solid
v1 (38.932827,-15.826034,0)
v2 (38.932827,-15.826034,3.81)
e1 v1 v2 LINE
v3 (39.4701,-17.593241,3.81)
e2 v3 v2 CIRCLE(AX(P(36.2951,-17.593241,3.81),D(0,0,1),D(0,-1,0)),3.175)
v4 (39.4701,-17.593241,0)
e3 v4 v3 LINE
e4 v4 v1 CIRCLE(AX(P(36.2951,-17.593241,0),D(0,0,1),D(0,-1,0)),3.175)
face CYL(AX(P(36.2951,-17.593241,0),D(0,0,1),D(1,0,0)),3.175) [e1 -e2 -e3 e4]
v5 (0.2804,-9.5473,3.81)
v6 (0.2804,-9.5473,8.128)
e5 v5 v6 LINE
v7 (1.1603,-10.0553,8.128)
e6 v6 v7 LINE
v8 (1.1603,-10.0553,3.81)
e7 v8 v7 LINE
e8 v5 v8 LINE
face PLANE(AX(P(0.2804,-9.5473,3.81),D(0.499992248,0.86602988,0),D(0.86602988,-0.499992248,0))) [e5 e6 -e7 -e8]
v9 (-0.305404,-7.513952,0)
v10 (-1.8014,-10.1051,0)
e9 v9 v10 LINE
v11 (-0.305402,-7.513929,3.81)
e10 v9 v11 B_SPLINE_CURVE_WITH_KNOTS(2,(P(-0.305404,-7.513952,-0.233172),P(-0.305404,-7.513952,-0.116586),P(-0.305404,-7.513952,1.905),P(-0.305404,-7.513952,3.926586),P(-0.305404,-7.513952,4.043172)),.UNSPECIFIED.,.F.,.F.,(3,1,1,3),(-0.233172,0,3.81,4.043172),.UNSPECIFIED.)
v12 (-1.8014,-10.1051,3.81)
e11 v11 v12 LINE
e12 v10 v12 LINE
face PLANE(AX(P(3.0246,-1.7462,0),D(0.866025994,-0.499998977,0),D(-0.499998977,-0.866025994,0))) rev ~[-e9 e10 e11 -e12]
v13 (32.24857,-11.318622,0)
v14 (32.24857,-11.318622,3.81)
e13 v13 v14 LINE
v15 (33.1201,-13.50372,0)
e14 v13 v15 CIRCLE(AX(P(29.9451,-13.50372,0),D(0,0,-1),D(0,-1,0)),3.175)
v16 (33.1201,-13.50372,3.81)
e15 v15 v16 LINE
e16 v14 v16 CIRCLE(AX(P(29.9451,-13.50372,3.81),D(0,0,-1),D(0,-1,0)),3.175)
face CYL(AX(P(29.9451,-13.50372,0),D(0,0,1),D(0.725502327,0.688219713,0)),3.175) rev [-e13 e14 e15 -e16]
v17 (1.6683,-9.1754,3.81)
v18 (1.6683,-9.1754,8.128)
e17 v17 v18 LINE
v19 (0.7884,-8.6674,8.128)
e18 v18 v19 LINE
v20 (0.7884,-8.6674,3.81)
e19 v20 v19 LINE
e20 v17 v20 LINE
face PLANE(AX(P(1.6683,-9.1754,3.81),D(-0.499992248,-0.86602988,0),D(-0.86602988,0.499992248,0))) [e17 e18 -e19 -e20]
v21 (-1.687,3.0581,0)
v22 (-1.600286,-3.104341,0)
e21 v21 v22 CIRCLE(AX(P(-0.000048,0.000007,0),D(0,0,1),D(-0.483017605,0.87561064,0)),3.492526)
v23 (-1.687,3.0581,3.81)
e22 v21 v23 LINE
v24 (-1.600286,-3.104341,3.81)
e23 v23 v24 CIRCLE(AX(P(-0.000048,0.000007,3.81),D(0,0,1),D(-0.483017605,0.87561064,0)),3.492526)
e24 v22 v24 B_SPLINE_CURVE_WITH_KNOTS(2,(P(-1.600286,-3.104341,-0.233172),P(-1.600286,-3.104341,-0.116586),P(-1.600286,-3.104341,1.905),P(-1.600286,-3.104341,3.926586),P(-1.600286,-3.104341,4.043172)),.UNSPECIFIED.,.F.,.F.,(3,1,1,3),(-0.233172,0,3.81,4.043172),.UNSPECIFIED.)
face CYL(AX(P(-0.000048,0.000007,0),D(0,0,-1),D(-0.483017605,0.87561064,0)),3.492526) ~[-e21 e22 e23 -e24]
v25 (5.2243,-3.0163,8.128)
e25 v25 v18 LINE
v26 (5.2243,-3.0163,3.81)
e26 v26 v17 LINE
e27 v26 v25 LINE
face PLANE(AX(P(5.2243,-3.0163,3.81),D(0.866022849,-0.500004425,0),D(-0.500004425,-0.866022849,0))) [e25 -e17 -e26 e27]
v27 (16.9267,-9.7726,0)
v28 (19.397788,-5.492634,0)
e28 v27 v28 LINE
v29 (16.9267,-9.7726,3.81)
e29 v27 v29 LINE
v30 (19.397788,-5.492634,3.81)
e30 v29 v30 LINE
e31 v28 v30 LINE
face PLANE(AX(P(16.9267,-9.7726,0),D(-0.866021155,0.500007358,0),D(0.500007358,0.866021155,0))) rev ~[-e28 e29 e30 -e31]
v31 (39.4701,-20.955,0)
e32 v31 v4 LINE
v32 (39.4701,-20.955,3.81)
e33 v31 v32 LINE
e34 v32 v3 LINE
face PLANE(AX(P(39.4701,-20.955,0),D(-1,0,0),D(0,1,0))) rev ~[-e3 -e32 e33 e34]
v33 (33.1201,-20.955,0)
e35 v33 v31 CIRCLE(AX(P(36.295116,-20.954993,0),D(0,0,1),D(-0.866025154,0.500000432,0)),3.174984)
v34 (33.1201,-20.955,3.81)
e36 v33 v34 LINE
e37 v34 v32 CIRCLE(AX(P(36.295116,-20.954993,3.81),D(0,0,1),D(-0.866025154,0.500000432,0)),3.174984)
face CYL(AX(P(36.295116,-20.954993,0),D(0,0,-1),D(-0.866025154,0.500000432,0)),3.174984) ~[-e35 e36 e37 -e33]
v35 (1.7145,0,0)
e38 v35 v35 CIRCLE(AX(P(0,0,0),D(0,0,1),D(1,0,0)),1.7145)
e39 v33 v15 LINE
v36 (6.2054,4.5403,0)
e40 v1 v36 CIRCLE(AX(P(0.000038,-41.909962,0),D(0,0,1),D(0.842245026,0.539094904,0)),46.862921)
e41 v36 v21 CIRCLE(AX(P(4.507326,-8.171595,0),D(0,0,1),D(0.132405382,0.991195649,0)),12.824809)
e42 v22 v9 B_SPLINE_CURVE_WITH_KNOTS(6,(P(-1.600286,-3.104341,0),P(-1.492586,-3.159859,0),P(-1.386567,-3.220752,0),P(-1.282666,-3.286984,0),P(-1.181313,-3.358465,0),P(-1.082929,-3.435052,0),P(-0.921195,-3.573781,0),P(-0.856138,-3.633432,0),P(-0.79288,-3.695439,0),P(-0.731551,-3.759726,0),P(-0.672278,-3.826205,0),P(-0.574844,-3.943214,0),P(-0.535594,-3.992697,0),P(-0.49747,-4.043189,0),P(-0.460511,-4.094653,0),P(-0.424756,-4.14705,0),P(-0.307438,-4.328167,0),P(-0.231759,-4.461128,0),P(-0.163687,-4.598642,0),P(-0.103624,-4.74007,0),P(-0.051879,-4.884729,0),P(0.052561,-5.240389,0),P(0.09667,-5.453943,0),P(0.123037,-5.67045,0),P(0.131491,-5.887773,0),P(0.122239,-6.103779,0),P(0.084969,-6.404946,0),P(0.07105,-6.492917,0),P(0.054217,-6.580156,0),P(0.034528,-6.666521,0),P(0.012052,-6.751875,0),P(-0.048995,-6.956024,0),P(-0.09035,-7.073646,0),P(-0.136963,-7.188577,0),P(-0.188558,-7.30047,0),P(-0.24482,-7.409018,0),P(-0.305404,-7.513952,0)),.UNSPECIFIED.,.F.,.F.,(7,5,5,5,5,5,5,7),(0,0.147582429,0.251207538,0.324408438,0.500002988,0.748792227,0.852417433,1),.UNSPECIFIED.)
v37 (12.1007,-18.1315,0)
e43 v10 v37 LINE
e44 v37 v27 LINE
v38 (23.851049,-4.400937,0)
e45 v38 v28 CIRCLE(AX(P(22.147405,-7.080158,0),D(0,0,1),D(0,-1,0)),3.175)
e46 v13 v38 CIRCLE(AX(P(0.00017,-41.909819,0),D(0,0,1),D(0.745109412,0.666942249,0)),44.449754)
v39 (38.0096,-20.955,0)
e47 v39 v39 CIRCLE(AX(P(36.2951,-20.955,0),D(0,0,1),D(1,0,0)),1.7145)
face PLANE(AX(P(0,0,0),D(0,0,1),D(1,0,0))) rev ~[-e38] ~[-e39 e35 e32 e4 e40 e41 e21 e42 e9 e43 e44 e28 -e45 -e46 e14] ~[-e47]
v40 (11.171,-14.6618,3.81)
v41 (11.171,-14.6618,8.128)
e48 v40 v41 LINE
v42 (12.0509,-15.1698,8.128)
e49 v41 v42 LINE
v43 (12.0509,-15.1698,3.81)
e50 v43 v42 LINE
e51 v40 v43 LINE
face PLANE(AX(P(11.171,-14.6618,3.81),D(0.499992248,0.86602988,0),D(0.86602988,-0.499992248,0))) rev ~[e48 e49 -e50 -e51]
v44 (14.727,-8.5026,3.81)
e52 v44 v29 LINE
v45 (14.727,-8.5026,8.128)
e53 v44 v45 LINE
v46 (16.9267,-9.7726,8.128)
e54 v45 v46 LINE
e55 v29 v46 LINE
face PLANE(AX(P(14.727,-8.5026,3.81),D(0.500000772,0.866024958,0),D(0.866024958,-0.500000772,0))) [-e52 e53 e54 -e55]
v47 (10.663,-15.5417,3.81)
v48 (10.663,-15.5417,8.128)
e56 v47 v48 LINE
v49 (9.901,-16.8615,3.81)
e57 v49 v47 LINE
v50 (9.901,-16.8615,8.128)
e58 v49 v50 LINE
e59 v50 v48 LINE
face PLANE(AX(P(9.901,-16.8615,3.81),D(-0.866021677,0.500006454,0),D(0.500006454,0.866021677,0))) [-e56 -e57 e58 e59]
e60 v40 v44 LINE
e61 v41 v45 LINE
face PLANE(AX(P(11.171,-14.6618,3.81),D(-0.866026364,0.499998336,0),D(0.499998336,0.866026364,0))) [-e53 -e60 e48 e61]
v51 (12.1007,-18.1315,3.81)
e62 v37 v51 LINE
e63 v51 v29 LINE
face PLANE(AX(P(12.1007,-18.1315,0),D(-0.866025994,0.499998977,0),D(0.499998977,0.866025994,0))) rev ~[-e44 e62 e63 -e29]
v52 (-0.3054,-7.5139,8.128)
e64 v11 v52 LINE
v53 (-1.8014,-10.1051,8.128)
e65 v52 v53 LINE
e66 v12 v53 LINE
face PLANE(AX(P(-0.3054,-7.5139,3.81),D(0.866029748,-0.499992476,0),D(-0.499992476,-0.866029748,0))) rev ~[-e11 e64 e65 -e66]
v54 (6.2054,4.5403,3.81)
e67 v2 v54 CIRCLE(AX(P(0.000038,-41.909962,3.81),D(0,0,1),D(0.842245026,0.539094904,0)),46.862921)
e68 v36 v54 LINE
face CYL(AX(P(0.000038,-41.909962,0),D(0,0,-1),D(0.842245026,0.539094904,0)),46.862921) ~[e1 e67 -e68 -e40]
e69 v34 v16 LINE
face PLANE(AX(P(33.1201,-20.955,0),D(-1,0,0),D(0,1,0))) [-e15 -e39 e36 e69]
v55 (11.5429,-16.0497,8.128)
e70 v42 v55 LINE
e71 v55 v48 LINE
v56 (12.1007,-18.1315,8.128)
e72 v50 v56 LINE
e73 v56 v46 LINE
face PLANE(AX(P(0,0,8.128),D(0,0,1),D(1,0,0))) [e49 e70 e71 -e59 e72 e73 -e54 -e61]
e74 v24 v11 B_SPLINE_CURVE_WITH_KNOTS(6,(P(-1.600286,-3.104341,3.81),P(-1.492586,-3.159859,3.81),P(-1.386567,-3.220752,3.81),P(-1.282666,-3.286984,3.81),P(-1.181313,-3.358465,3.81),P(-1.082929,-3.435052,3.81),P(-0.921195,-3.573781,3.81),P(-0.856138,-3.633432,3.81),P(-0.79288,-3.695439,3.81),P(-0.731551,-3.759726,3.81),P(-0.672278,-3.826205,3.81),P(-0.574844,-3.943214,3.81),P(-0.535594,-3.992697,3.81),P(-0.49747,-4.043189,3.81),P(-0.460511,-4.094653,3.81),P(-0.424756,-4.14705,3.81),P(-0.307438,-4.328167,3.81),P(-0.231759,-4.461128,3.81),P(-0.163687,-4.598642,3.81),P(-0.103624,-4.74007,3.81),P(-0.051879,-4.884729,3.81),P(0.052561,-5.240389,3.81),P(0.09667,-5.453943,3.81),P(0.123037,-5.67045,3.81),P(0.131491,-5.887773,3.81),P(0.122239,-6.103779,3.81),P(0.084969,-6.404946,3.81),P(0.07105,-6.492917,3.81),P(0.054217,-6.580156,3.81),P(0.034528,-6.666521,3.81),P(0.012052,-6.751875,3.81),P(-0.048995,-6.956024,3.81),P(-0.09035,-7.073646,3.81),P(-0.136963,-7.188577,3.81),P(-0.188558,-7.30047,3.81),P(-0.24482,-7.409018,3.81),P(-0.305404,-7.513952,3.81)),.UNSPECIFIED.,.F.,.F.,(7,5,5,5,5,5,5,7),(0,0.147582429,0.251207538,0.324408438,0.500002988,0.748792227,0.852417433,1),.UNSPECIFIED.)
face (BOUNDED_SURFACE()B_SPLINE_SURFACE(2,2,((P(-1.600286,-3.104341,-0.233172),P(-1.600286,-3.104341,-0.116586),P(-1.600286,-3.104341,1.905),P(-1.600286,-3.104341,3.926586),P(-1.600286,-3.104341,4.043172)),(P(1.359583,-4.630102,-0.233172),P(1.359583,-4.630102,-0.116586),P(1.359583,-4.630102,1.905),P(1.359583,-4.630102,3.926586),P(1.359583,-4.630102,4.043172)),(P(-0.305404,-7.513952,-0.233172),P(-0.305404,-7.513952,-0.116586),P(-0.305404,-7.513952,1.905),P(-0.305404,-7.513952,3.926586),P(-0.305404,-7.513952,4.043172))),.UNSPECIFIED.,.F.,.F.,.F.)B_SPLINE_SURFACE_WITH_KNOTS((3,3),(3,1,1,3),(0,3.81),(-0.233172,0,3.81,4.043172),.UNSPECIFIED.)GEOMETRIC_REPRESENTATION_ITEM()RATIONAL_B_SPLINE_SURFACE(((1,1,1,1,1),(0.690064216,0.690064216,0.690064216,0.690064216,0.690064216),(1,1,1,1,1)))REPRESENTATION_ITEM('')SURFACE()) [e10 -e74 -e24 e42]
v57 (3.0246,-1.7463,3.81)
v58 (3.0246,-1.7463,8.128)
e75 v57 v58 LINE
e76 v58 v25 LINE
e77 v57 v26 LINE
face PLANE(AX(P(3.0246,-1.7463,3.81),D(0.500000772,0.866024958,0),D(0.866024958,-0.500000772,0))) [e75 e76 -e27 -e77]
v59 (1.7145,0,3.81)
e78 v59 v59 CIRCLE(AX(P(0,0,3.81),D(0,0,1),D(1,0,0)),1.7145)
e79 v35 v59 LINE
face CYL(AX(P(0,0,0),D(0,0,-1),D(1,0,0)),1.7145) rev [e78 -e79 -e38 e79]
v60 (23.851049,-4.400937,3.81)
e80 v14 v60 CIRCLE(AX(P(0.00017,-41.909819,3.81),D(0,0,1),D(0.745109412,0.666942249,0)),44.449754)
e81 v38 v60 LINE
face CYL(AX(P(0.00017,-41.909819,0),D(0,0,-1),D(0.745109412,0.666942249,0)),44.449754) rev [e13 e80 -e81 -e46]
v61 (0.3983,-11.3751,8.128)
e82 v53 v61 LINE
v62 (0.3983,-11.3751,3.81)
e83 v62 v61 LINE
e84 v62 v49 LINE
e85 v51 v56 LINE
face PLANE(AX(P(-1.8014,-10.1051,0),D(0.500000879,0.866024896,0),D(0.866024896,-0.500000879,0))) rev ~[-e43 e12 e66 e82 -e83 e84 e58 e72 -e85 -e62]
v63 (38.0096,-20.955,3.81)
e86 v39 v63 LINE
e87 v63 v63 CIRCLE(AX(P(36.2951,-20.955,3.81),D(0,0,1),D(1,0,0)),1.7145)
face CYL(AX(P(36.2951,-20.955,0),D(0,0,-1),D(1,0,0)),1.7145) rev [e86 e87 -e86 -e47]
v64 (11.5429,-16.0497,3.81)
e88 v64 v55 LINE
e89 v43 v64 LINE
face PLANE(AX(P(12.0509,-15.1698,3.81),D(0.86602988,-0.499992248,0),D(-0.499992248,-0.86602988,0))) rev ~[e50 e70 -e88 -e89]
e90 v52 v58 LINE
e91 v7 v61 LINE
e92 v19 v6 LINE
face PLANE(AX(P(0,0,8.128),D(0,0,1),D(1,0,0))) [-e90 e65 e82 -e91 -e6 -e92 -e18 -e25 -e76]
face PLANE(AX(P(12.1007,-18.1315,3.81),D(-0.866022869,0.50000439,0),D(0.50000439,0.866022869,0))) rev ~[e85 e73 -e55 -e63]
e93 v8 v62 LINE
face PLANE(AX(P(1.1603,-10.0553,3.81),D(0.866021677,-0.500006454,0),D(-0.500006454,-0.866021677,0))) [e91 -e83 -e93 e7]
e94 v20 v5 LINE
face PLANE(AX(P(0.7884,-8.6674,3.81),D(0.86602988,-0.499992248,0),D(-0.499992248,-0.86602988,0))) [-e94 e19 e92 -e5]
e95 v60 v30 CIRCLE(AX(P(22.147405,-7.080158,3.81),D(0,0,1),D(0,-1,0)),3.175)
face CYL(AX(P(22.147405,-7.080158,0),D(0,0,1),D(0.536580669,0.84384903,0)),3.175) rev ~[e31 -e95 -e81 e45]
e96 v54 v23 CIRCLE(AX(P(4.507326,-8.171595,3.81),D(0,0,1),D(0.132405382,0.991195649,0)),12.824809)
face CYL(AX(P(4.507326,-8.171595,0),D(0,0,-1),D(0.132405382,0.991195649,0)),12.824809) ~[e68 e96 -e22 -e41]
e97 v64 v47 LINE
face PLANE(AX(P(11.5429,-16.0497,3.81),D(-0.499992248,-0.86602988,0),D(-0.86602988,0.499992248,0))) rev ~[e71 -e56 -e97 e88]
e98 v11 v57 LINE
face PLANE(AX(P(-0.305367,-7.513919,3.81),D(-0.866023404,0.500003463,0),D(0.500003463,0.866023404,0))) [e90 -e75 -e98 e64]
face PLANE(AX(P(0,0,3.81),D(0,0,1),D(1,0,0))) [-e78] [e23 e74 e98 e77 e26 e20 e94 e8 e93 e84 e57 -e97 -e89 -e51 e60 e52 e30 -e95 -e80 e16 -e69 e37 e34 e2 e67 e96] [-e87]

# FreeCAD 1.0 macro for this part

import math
import FreeCAD as App
import Part
import Sketcher
Q = App.Units.Quantity


def edges_at(feature, points):
    """Names of the edges that pass closest to the given points."""
    edges = feature.Shape.Edges
    near = lambda p: min(range(len(edges)), key=lambda i: edges[i].distToShape(Part.Vertex(*p))[0])
    return sorted({f"Edge{near(p) + 1}" for p in points})

doc = App.newDocument("Part")
body = doc.addObject("PartDesign::Body", "Body")

# Sketch on XY plane
sketch1 = body.newObject("Sketcher::SketchObject", "Sketch")
sketch1.AttachmentSupport = (doc.getObject("XY_Plane"), [""])
sketch1.MapMode = "FlatFace"
sketch1.addGeometry([
    Part.ArcOfCircle(Part.Circle(App.Vector(4.5073, -8.1706, 0), App.Vector(0, 0, 1), 12.823826), math.radians(82.390683), math.radians(118.883277)),  # 0
    Part.ArcOfCircle(Part.Circle(App.Vector(0, 0, 0), App.Vector(0, 0, 1), 3.492556), math.radians(118.883313), math.radians(330.000762)),  # 1
    Part.LineSegment(App.Vector(3.0246, -1.7462, 0), App.Vector(-1.8014, -10.1051, 0)),  # 2
    Part.LineSegment(App.Vector(-1.8014, -10.1051, 0), App.Vector(12.1007, -18.1315, 0)),  # 3
    Part.LineSegment(App.Vector(12.1007, -18.1315, 0), App.Vector(16.9267, -9.7726, 0)),  # 4
    Part.LineSegment(App.Vector(16.9267, -9.7726, 0), App.Vector(20.993, -2.7297, 0)),  # 5
    Part.ArcOfCircle(Part.Circle(App.Vector(0, -41.91, 0), App.Vector(0, 0, 1), 44.450001), math.radians(41.83153), math.radians(61.817372)),  # 6
    Part.LineSegment(App.Vector(33.1201, -12.2644, 0), App.Vector(33.1201, -20.955, 0)),  # 7
    Part.ArcOfCircle(Part.Circle(App.Vector(36.2951, -20.955, 0), App.Vector(0, 0, 1), 3.174973), math.radians(180), math.radians(360)),  # 8
    Part.LineSegment(App.Vector(39.4701, -20.955, 0), App.Vector(39.4701, -16.6464, 0)),  # 9
    Part.ArcOfCircle(Part.Circle(App.Vector(0, -41.91, 0), App.Vector(0, 0, 1), 46.862973), math.radians(32.622061), math.radians(82.390782)),  # 10
    Part.Circle(App.Vector(36.2951, -20.955, 0), App.Vector(0, 0, 1), 1.7145),  # 11
    Part.Circle(App.Vector(0, 0, 0), App.Vector(0, 0, 1), 1.7145),  # 12
], False)
sketch1.addConstraint([
    Sketcher.Constraint("Tangent", 0, 2, 1, 1),
    Sketcher.Constraint("Tangent", 1, 2, 2, 1),
    Sketcher.Constraint("Coincident", 2, 2, 3, 1),
    Sketcher.Constraint("Coincident", 3, 2, 4, 1),
    Sketcher.Constraint("Coincident", 4, 2, 5, 1),
    Sketcher.Constraint("Coincident", 5, 2, 6, 2),
    Sketcher.Constraint("Coincident", 6, 1, 7, 1),
    Sketcher.Constraint("Tangent", 7, 2, 8, 1),
    Sketcher.Constraint("Tangent", 8, 2, 9, 1),
    Sketcher.Constraint("Coincident", 9, 2, 10, 1),
    Sketcher.Constraint("Tangent", 10, 2, 0, 1),
    Sketcher.Constraint("Vertical", 7),
    Sketcher.Constraint("Vertical", 9),
    Sketcher.Constraint("Coincident", 1, 3, -1, 1),
    Sketcher.Constraint("Coincident", 12, 3, -1, 1),
    Sketcher.Constraint("Coincident", 10, 3, 6, 3),
    Sketcher.Constraint("Coincident", 11, 3, 8, 3),
    Sketcher.Constraint("Equal", 11, 12),
    Sketcher.Constraint("PointOnObject", 6, 3, -2),
    Sketcher.Constraint("Perpendicular", 2, 3),
    Sketcher.Constraint("Perpendicular", 3, 4),
    Sketcher.Constraint("Parallel", 4, 5),
    Sketcher.Constraint("Equal", 2, 4),
    Sketcher.Constraint("Diameter", 11, Q("0.135 in")),
    Sketcher.Constraint("Angle", 3, Q("-30 deg")),
    Sketcher.Constraint("Radius", 8, Q("0.125 in")),
    Sketcher.Constraint("Radius", 10, Q("1.845 in")),
    Sketcher.Constraint("Radius", 1, Q("0.1375 in")),
    Sketcher.Constraint("Distance", 2, Q("0.38 in")),
    Sketcher.Constraint("DistanceY", 6, 3, -1, 1, Q("1.65 in")),
    Sketcher.Constraint("Radius", 6, Q("1.75 in")),
    Sketcher.Constraint("Distance", 3, Q("0.632 in")),
    Sketcher.Constraint("Radius", 0, 12.8238),
    Sketcher.Constraint("DistanceY", 8, 3, -1, 1, Q("0.825 in")),
    Sketcher.Constraint("DistanceY", 3, 2, 6, 1, Q("0.231 in")),
])
pad1 = body.newObject("PartDesign::Pad", "Pad")
pad1.Profile = sketch1
pad1.Length = Q("0.15 in")
doc.recompute()

fillet = body.newObject("PartDesign::Fillet", "Fillet")
fillet.Base = (pad1, edges_at(pad1, [
    (3.025, -1.746, 1.905),
    (20.993, -2.73, 1.905),
    (33.12, -12.264, 1.905),
    (39.47, -16.646, 1.905),
]))
fillet.Radius = Q("0.125 in")

# Sketch on XY plane
sketch2 = body.newObject("Sketcher::SketchObject", "Sketch001")
sketch2.AttachmentSupport = (doc.getObject("XY_Plane"), [""])
sketch2.MapMode = "FlatFace"
sketch2.AttachmentOffset = App.Placement(App.Vector(0, 0, 0.15 * 25.4), App.Rotation())
sketch2.addGeometry([
    Part.LineSegment(App.Vector(-0.3054, -7.5139, 0), App.Vector(-1.8014, -10.1051, 0)),  # 0
    Part.LineSegment(App.Vector(-1.8014, -10.1051, 0), App.Vector(0.3983, -11.3751, 0)),  # 1
    Part.LineSegment(App.Vector(0.3983, -11.3751, 0), App.Vector(1.1603, -10.0553, 0)),  # 2
    Part.LineSegment(App.Vector(1.1603, -10.0553, 0), App.Vector(0.2804, -9.5473, 0)),  # 3
    Part.LineSegment(App.Vector(0.2804, -9.5473, 0), App.Vector(0.7884, -8.6674, 0)),  # 4
    Part.LineSegment(App.Vector(0.7884, -8.6674, 0), App.Vector(1.6683, -9.1754, 0)),  # 5
    Part.LineSegment(App.Vector(1.6683, -9.1754, 0), App.Vector(5.2243, -3.0163, 0)),  # 6
    Part.LineSegment(App.Vector(5.2243, -3.0163, 0), App.Vector(3.0246, -1.7463, 0)),  # 7
    Part.LineSegment(App.Vector(3.0246, -1.7463, 0), App.Vector(-0.305367, -7.513919, 0)),  # 8
    Part.LineSegment(App.Vector(10.663, -15.5417, 0), App.Vector(9.901, -16.8615, 0)),  # 9
    Part.LineSegment(App.Vector(9.901, -16.8615, 0), App.Vector(12.1007, -18.1315, 0)),  # 10
    Part.LineSegment(App.Vector(12.1007, -18.1315, 0), App.Vector(16.926752, -9.77263, 0)),  # 11
    Part.LineSegment(App.Vector(16.9267, -9.7726, 0), App.Vector(14.727, -8.5026, 0)),  # 12
    Part.LineSegment(App.Vector(14.727, -8.5026, 0), App.Vector(11.171, -14.6618, 0)),  # 13
    Part.LineSegment(App.Vector(11.171, -14.6618, 0), App.Vector(12.0509, -15.1698, 0)),  # 14
    Part.LineSegment(App.Vector(12.0509, -15.1698, 0), App.Vector(11.5429, -16.0497, 0)),  # 15
    Part.LineSegment(App.Vector(11.5429, -16.0497, 0), App.Vector(10.663, -15.5417, 0)),  # 16
], False)
sketch2.addConstraint([
    Sketcher.Constraint("Coincident", 0, 2, 1, 1),
    Sketcher.Constraint("Coincident", 1, 2, 2, 1),
    Sketcher.Constraint("Coincident", 2, 2, 3, 1),
    Sketcher.Constraint("Coincident", 3, 2, 4, 1),
    Sketcher.Constraint("Coincident", 4, 2, 5, 1),
    Sketcher.Constraint("Coincident", 5, 2, 6, 1),
    Sketcher.Constraint("Coincident", 6, 2, 7, 1),
    Sketcher.Constraint("Coincident", 7, 2, 8, 1),
    Sketcher.Constraint("Coincident", 8, 2, 0, 1),
    Sketcher.Constraint("Coincident", 9, 2, 10, 1),
    Sketcher.Constraint("Coincident", 10, 2, 11, 1),
    Sketcher.Constraint("Coincident", 11, 2, 12, 1),
    Sketcher.Constraint("Coincident", 12, 2, 13, 1),
    Sketcher.Constraint("Coincident", 13, 2, 14, 1),
    Sketcher.Constraint("Coincident", 14, 2, 15, 1),
    Sketcher.Constraint("Coincident", 15, 2, 16, 1),
    Sketcher.Constraint("Coincident", 16, 2, 9, 1),
    Sketcher.Constraint("Perpendicular", 0, 1),
    Sketcher.Constraint("Perpendicular", 1, 2),
    Sketcher.Constraint("Perpendicular", 2, 3),
    Sketcher.Constraint("Perpendicular", 3, 4),
    Sketcher.Constraint("Perpendicular", 4, 5),
    Sketcher.Constraint("Perpendicular", 5, 6),
    Sketcher.Constraint("Perpendicular", 6, 7),
    Sketcher.Constraint("Perpendicular", 7, 8),
    Sketcher.Constraint("Parallel", 8, 9),
    Sketcher.Constraint("Perpendicular", 9, 10),
    Sketcher.Constraint("Perpendicular", 10, 11),
    Sketcher.Constraint("Perpendicular", 11, 12),
    Sketcher.Constraint("Perpendicular", 12, 13),
    Sketcher.Constraint("Perpendicular", 13, 14),
    Sketcher.Constraint("Perpendicular", 14, 15),
    Sketcher.Constraint("Perpendicular", 15, 16),
    Sketcher.Constraint("Equal", 3, 4),
    Sketcher.Constraint("Equal", 4, 5),
    Sketcher.Constraint("Equal", 2, 9),
    Sketcher.Constraint("Equal", 7, 10),
    Sketcher.Constraint("Equal", 10, 12),
    Sketcher.Constraint("Equal", 6, 13),
    Sketcher.Constraint("Equal", 5, 14),
    Sketcher.Constraint("Equal", 14, 15),
    Sketcher.Constraint("Distance", 1, Q("0.1 in")),
    Sketcher.Constraint("Distance", 3, Q("0.04 in")),
    Sketcher.Constraint("Distance", 6, Q("0.28 in")),
    Sketcher.Constraint("Distance", 11, Q("0.38 in")),
    Sketcher.Constraint("Angle", 0, Q("-119.9995 deg")),
    Sketcher.Constraint("DistanceY", 9, 2, 1, 2, Q("0.216 in")),
    Sketcher.Constraint("Distance", 0, Q("0.1178 in")),
    Sketcher.Constraint("DistanceX", -1, 1, 9, 2, Q("0.3898 in")),
    Sketcher.Constraint("DistanceX", 0, 2, -1, 1, 1.8014),
    Sketcher.Constraint("DistanceY", 0, 2, -1, 1, 10.105),
])
pad2 = body.newObject("PartDesign::Pad", "Pad001")
pad2.Profile = sketch2
pad2.Length = Q("0.17 in")

doc.recompute()
